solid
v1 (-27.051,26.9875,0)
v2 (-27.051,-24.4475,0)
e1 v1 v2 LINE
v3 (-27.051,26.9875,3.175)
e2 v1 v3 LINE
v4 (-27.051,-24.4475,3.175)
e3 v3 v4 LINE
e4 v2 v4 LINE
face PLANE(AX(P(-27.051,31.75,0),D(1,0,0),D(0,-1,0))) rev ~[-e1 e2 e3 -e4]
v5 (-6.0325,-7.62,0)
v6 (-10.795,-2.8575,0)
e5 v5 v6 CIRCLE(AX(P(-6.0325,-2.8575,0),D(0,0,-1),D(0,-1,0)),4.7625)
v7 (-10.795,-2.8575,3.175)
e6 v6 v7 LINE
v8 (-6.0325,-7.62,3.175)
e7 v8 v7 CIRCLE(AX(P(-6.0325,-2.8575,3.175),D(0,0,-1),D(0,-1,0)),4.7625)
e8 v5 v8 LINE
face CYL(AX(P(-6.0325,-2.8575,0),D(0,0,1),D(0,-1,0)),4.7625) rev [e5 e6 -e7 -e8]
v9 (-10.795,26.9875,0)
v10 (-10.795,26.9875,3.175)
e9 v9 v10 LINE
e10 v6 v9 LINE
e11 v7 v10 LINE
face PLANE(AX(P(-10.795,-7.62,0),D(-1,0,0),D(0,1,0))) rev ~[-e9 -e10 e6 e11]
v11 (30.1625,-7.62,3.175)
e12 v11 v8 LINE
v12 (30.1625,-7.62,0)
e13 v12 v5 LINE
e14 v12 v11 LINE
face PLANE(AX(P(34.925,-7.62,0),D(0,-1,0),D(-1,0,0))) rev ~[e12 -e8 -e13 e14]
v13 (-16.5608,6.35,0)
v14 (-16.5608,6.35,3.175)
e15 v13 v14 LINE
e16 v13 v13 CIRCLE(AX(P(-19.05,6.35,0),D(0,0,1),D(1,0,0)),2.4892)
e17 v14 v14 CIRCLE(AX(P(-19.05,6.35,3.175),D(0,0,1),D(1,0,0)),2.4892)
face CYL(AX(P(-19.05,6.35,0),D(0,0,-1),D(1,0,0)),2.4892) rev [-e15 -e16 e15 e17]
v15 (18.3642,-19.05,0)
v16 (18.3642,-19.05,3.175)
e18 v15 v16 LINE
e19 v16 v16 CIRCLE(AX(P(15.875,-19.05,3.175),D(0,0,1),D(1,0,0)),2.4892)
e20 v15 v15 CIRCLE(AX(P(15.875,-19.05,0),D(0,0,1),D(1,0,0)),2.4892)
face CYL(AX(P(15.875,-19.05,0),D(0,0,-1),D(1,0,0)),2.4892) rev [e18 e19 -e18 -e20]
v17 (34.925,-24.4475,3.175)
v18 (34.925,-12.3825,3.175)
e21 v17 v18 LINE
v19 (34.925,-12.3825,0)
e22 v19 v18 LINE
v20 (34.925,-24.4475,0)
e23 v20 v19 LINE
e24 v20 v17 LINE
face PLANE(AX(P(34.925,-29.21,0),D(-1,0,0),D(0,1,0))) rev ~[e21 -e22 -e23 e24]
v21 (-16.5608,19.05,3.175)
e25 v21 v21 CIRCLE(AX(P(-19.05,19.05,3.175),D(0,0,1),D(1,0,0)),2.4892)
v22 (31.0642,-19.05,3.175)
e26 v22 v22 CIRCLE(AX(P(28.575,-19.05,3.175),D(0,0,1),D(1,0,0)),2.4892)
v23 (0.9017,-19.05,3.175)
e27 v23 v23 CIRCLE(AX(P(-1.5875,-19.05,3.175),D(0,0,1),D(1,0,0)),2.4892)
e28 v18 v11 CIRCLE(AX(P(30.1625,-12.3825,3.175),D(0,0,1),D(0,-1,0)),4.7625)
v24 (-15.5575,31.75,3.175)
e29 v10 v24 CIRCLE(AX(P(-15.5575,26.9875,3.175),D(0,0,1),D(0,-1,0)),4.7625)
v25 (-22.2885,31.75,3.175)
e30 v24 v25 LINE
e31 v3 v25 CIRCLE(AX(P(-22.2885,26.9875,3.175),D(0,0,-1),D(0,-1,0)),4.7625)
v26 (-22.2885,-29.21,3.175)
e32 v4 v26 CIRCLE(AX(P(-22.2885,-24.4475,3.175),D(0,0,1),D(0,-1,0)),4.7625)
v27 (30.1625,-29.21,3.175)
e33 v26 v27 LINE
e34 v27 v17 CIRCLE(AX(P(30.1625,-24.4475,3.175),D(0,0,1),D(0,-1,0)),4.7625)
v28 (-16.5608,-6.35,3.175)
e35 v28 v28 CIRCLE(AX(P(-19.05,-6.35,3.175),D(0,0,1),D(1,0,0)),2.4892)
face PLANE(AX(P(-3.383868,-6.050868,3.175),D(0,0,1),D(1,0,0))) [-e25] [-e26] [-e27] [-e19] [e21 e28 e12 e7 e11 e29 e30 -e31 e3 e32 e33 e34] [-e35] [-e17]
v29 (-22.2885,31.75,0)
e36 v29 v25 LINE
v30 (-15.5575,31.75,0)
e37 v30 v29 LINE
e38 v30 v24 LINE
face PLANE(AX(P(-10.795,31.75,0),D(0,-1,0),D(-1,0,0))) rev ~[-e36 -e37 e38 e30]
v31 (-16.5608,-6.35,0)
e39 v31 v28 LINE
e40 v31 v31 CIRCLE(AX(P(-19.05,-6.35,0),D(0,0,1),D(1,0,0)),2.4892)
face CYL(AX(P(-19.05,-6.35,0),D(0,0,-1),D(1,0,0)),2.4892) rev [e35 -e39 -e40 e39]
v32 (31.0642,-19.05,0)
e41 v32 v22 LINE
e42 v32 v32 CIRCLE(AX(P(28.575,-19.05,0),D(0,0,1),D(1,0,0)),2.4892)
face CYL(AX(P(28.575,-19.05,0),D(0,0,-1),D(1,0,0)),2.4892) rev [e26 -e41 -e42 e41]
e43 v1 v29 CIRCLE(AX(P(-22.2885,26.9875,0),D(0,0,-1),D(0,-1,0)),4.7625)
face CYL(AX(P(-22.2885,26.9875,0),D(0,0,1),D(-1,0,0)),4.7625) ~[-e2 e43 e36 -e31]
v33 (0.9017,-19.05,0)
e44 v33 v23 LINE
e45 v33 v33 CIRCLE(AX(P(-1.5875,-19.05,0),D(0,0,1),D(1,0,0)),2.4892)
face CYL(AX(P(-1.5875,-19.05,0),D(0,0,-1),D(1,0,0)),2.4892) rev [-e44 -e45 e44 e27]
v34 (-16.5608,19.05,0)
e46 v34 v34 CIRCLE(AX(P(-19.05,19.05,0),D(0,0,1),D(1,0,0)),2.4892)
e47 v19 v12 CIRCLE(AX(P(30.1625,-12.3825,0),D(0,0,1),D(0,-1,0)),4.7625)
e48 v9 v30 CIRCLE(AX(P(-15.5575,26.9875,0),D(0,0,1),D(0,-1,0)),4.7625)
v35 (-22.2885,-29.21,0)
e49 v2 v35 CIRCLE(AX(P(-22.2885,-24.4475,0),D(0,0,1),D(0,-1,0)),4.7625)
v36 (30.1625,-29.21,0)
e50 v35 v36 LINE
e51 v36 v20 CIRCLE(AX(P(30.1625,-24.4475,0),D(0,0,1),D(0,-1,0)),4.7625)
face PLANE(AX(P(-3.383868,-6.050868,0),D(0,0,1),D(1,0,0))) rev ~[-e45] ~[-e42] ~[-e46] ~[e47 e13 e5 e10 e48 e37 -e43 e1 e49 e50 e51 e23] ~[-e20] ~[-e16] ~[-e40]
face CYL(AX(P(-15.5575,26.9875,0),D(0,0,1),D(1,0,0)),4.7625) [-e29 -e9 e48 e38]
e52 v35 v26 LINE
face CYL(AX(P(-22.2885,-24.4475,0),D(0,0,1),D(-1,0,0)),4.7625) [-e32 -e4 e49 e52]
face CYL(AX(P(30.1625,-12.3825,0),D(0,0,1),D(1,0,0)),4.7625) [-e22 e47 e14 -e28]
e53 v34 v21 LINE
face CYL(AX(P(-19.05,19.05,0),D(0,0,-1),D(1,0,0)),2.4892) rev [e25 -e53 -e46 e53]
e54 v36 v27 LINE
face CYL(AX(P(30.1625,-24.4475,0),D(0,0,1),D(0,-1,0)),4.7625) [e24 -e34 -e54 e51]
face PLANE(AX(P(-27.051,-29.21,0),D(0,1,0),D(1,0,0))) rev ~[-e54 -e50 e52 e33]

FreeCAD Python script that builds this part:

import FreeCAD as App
import Part
import Sketcher
from FreeCAD import Vector
Q = App.Units.Quantity


def edges_at(feature, points):
    """Names of the edges that pass closest to the given points."""
    edges = feature.Shape.Edges
    near = lambda p: min(range(len(edges)), key=lambda i: edges[i].distToShape(Part.Vertex(*p))[0])
    return sorted({f"Edge{near(p) + 1}" for p in points})


def add_polygon(sketch, points):
    """Adds a closed chain of lines whose ends are joined by coincident constraints."""
    first, n = sketch.GeometryCount, len(points)
    for a, b in zip(points, points[1:] + points[:1]):
        sketch.addGeometry(Part.LineSegment(App.Vector(*a, 0), App.Vector(*b, 0)), False)
    for i in range(n):
        sketch.addConstraint(Sketcher.Constraint("Coincident", first + i, 2, first + (i + 1) % n, 1))

doc = App.newDocument("Part")
body = doc.addObject("PartDesign::Body", "Body")

sketch1 = body.newObject("Sketcher::SketchObject", "Sketch")
sketch1.AttachmentSupport = (doc.getObject("XY_Plane"), [""])
sketch1.MapMode = "FlatFace"
add_polygon(sketch1, [(-27.1, 31.8), (-27.1, -29.2), (34.9, -29.2), (34.9, -7.6), (-10.8, -7.6), (-10.8, 31.8)])
sketch1.addGeometry(Part.Circle(Vector(-1.6, -19.1, 0), Vector(0, 0, 1), 2.5), False)
sketch1.addGeometry(Part.Circle(Vector(-19.1, -6.3, 0), Vector(0, 0, 1), 2.5), False)
sketch1.addGeometry(Part.Circle(Vector(15.9, -19.1, 0), Vector(0, 0, 1), 2.5), False)
sketch1.addGeometry(Part.Circle(Vector(28.6, -19.1, 0), Vector(0, 0, 1), 2.5), False)
sketch1.addGeometry(Part.Circle(Vector(-19.1, 6.3, 0), Vector(0, 0, 1), 2.5), False)
sketch1.addGeometry(Part.Circle(Vector(-19.1, 19.1, 0), Vector(0, 0, 1), 2.5), False)
sketch1.addConstraint(Sketcher.Constraint("Vertical", 0))
sketch1.addConstraint(Sketcher.Constraint("Horizontal", 1))
sketch1.addConstraint(Sketcher.Constraint("Vertical", 2))
sketch1.addConstraint(Sketcher.Constraint("Horizontal", 3))
sketch1.addConstraint(Sketcher.Constraint("Vertical", 4))
sketch1.addConstraint(Sketcher.Constraint("Horizontal", 5))
sketch1.addConstraint(Sketcher.Constraint("Equal", 6, 7))
sketch1.addConstraint(Sketcher.Constraint("Equal", 7, 8))
sketch1.addConstraint(Sketcher.Constraint("Equal", 8, 9))
sketch1.addConstraint(Sketcher.Constraint("Equal", 9, 10))
sketch1.addConstraint(Sketcher.Constraint("Equal", 10, 11))
sketch1.addConstraint(Sketcher.Constraint("Symmetric", 7, 3, 10, 3, -1))
sketch1.addConstraint(Sketcher.Constraint("Horizontal", 6, 3, 8, 3))
sketch1.addConstraint(Sketcher.Constraint("Horizontal", 8, 3, 9, 3))
sketch1.addConstraint(Sketcher.Constraint("Vertical", 10, 3, 11, 3))
sketch1.addConstraint(Sketcher.Constraint("Diameter", 6, Q("0.196 in")))
sketch1.addConstraint(Sketcher.Constraint("DistanceX", 3, 2, 3, 1, Q("1.8 in")))
sketch1.addConstraint(Sketcher.Constraint("DistanceY", 0, 2, 0, 1, Q("2.4 in")))
sketch1.addConstraint(Sketcher.Constraint("DistanceY", 6, 3, 10, 3, Q("1 in")))
sketch1.addConstraint(Sketcher.Constraint("DistanceY", 7, 3, 11, 3, Q("1 in")))
sketch1.addConstraint(Sketcher.Constraint("DistanceY", 10, 3, 4, 2, Q("1 in")))
sketch1.addConstraint(Sketcher.Constraint("DistanceX", 1, 1, 1, 2, Q("2.44 in")))
sketch1.addConstraint(Sketcher.Constraint("DistanceY", 2, 1, 2, 2, Q("0.85 in")))
sketch1.addConstraint(Sketcher.Constraint("DistanceY", 2, 2, -1, 1, Q("0.3 in")))
sketch1.addConstraint(Sketcher.Constraint("DistanceX", 8, 3, 9, 3, Q("0.5 in")))
sketch1.addConstraint(Sketcher.Constraint("DistanceX", 7, 3, -1, 1, Q("0.75 in")))
sketch1.addConstraint(Sketcher.Constraint("DistanceX", 0, 2, 8, 3, Q("1.69 in")))
sketch1.addConstraint(Sketcher.Constraint("DistanceX", 6, 3, -1, 1, Q("0.0625 in")))
sketch1.addConstraint(Sketcher.Constraint("DistanceX", -1, 1, 8, 3, Q("0.625 in")))
pad1 = body.newObject("PartDesign::Pad", "Pad")
pad1.Profile = sketch1
pad1.Length = Q("0.125 in")
doc.recompute()

fillet = body.newObject("PartDesign::Fillet", "Fillet")
fillet.Base = (pad1, edges_at(pad1, [
    (-27.051, 31.75, 1.587),
    (-10.795, 31.75, 1.587),
    (-10.795, -7.62, 1.587),
    (34.925, -7.62, 1.587),
    (34.925, -29.21, 1.587),
    (-27.051, -29.21, 1.587),
]))
fillet.Radius = Q("0.1875 in")

doc.recompute()
